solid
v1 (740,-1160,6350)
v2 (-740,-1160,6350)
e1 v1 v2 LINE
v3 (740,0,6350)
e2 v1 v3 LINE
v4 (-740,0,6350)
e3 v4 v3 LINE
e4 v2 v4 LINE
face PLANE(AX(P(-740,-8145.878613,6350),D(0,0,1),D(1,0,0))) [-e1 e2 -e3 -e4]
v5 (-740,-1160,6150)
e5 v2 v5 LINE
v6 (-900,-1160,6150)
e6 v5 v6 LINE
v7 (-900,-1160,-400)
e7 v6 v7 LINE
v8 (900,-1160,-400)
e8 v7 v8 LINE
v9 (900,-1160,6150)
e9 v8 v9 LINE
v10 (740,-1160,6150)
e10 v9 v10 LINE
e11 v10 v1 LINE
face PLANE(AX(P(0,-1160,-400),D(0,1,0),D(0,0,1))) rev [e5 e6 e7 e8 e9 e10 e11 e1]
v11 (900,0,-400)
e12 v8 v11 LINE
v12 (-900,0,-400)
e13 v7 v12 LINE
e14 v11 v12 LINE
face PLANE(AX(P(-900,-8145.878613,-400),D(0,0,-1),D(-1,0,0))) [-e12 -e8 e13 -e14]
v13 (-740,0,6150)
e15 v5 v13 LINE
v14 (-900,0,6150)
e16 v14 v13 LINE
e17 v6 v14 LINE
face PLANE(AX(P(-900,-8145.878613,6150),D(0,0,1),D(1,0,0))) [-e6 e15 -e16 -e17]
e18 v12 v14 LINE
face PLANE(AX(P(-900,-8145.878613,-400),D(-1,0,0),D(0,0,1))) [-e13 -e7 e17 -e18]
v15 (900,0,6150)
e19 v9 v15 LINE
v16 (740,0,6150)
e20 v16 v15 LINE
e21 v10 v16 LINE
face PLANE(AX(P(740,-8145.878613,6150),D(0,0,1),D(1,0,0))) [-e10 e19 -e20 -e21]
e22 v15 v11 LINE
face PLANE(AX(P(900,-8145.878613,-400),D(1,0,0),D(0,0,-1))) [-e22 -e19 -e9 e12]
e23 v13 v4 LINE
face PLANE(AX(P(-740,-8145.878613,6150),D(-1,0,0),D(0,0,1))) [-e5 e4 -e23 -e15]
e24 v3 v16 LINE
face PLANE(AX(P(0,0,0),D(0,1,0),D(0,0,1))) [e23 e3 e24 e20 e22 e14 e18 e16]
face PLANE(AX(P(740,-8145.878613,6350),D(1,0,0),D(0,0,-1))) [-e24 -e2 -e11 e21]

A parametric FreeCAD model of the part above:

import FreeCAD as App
import Part
import Sketcher
from FreeCAD import Vector

doc = App.newDocument("Part")
body = doc.addObject("PartDesign::Body", "Body")

# Sketch on XZ plane
sketch1 = doc.addObject("Sketcher::SketchObject", "Sketch")
body.addObject(sketch1)
sketch1.AttachmentSupport = (doc.XZ_Plane, [""])
sketch1.MapMode = "FlatFace"
sketch1.addGeometry(Part.LineSegment(Vector(-740, 6150, 0), Vector(-740, 6350, 0)), False)
sketch1.addGeometry(Part.LineSegment(Vector(-740, 6350, 0), Vector(740, 6350, 0)), False)
sketch1.addGeometry(Part.LineSegment(Vector(740, 6350, 0), Vector(740, 6150, 0)), False)
sketch1.addGeometry(Part.LineSegment(Vector(740, 6150, 0), Vector(900, 6150, 0)), False)
sketch1.addGeometry(Part.LineSegment(Vector(900, 6150, 0), Vector(900, -400, 0)), False)
sketch1.addGeometry(Part.LineSegment(Vector(900, -400, 0), Vector(-900, -400, 0)), False)
sketch1.addGeometry(Part.LineSegment(Vector(-900, -400, 0), Vector(-900, 6150, 0)), False)
sketch1.addGeometry(Part.LineSegment(Vector(-900, 6150, 0), Vector(-740, 6150, 0)), False)
sketch1.addConstraint(Sketcher.Constraint("Coincident", 0, 2, 1, 1))
sketch1.addConstraint(Sketcher.Constraint("Coincident", 1, 2, 2, 1))
sketch1.addConstraint(Sketcher.Constraint("Coincident", 2, 2, 3, 1))
sketch1.addConstraint(Sketcher.Constraint("Coincident", 3, 2, 4, 1))
sketch1.addConstraint(Sketcher.Constraint("Coincident", 4, 2, 5, 1))
sketch1.addConstraint(Sketcher.Constraint("Coincident", 5, 2, 6, 1))
sketch1.addConstraint(Sketcher.Constraint("Coincident", 6, 2, 7, 1))
sketch1.addConstraint(Sketcher.Constraint("Coincident", 7, 2, 0, 1))
sketch1.addConstraint(Sketcher.Constraint("Vertical", 0))
sketch1.addConstraint(Sketcher.Constraint("Horizontal", 1))
sketch1.addConstraint(Sketcher.Constraint("Vertical", 2))
sketch1.addConstraint(Sketcher.Constraint("Horizontal", 3))
sketch1.addConstraint(Sketcher.Constraint("Vertical", 4))
sketch1.addConstraint(Sketcher.Constraint("Horizontal", 5))
sketch1.addConstraint(Sketcher.Constraint("Vertical", 6))
sketch1.addConstraint(Sketcher.Constraint("Horizontal", 7))
sketch1.addConstraint(Sketcher.Constraint("Symmetric", 3, 2, 6, 2, -2))
sketch1.addConstraint(Sketcher.Constraint("Equal", 3, 7))
sketch1.addConstraint(Sketcher.Constraint("DistanceX", 1, 1, 1, 2, 1480.0))
sketch1.addConstraint(Sketcher.Constraint("DistanceX", 3, 1, 3, 2, 160.0))
sketch1.addConstraint(Sketcher.Constraint("DistanceY", 0, 1, 0, 2, 200.0))
sketch1.addConstraint(Sketcher.Constraint("DistanceY", 4, 2, 4, 1, 6550.0))
sketch1.addConstraint(Sketcher.Constraint("DistanceY", -1, 1, 0, 2, 6350.0))
pad1 = doc.addObject("PartDesign::Pad", "Pad")
body.addObject(pad1)
pad1.Profile = sketch1
pad1.Length = 1160

doc.recompute()
